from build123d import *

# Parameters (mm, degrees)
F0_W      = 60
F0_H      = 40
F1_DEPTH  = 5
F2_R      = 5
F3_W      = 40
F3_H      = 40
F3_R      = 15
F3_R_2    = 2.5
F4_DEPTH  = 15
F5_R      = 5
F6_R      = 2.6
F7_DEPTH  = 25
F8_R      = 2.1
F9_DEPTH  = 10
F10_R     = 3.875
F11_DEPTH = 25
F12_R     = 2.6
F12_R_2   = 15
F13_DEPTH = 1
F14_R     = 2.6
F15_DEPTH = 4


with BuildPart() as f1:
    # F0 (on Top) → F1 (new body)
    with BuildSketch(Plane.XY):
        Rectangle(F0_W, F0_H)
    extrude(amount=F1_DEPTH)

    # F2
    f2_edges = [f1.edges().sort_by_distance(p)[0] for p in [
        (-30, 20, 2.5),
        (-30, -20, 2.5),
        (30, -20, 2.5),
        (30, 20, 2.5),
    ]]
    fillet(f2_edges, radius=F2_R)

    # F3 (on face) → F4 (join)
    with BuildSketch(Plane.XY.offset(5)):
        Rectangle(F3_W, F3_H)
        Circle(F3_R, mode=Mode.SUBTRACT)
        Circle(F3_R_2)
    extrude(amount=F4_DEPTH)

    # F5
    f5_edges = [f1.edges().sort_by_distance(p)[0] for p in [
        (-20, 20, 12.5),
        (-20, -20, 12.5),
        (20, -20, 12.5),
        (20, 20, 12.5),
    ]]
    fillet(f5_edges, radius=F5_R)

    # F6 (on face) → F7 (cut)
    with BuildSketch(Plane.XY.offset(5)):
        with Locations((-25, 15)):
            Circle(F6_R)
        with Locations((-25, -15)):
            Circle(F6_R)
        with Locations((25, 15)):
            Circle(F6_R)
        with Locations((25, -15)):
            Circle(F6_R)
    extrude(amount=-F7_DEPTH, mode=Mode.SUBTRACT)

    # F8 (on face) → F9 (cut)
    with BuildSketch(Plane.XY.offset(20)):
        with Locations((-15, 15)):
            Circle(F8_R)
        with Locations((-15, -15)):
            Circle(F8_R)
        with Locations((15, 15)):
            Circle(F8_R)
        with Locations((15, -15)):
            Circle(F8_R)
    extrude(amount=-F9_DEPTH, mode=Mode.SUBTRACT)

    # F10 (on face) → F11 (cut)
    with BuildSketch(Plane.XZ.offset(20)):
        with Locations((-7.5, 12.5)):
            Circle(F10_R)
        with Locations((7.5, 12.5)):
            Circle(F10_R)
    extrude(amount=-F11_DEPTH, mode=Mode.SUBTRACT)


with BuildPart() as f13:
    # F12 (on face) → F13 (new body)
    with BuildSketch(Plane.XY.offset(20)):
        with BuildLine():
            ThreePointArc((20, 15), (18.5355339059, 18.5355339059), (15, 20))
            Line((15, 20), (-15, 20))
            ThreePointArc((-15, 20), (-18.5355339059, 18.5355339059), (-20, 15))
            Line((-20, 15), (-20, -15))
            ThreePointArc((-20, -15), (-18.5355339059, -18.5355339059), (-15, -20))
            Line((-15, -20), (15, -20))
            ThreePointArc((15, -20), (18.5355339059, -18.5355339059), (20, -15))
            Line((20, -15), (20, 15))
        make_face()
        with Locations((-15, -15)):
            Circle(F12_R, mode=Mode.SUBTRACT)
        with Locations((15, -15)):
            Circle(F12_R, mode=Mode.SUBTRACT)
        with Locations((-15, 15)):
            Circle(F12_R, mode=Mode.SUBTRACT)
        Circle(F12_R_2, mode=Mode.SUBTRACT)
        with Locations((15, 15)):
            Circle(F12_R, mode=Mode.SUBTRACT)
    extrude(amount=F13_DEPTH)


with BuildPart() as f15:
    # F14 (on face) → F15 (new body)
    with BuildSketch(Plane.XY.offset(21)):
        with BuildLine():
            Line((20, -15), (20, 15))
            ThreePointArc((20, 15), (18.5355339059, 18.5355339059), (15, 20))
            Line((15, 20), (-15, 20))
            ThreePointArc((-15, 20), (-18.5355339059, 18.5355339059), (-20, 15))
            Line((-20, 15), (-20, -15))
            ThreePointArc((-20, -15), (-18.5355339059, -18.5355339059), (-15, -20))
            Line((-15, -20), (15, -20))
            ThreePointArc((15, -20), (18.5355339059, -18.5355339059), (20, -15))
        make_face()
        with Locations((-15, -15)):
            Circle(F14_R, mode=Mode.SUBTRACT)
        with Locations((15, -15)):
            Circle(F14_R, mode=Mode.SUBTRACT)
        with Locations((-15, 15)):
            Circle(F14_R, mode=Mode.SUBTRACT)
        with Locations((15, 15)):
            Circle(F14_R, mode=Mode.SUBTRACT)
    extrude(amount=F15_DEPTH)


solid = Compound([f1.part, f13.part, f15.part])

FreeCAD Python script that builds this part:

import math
import FreeCAD as App
import Part
import Sketcher
Q = App.Units.Quantity


def edges_at(feature, points):
    """Names of the edges that pass closest to the given points."""
    edges = feature.Shape.Edges
    near = lambda p: min(range(len(edges)), key=lambda i: edges[i].distToShape(Part.Vertex(*p))[0])
    return sorted({f"Edge{near(p) + 1}" for p in points})

doc = App.newDocument("Part")
body = doc.addObject("PartDesign::Body", "Body")

# Sketch on XY plane
sketch1 = body.newObject("Sketcher::SketchObject", "Sketch")
sketch1.AttachmentSupport = (doc.getObject("XY_Plane"), [""])
sketch1.MapMode = "FlatFace"
sketch1.addGeometry([
    Part.LineSegment(App.Vector(-30, 20, 0), App.Vector(-30, -20, 0)),
    Part.LineSegment(App.Vector(-30, -20, 0), App.Vector(30, -20, 0)),
    Part.LineSegment(App.Vector(30, -20, 0), App.Vector(30, 20, 0)),
    Part.LineSegment(App.Vector(30, 20, 0), App.Vector(-30, 20, 0)),
], False)
sketch1.addConstraint([
    Sketcher.Constraint("Coincident", 0, 2, 1, 1),
    Sketcher.Constraint("Coincident", 1, 2, 2, 1),
    Sketcher.Constraint("Coincident", 2, 2, 3, 1),
    Sketcher.Constraint("Coincident", 3, 2, 0, 1),
    Sketcher.Constraint("Vertical", 0),
    Sketcher.Constraint("Horizontal", 1),
    Sketcher.Constraint("Vertical", 2),
    Sketcher.Constraint("Horizontal", 3),
    Sketcher.Constraint("Symmetric", 0, 2, 2, 2, -1, 1),
    Sketcher.Constraint("DistanceX", 1, 1, 1, 2, Q("60 mm")),
    Sketcher.Constraint("DistanceY", 0, 2, 0, 1, Q("40 mm")),
])
pad1 = body.newObject("PartDesign::Pad", "Pad")
pad1.Profile = sketch1
pad1.Length = 5
doc.recompute()

fillet = body.newObject("PartDesign::Fillet", "Fillet")
fillet.Base = (pad1, edges_at(pad1, [
    (-30, 20, 2.5),
    (-30, -20, 2.5),
    (30, -20, 2.5),
    (30, 20, 2.5),
]))
fillet.Radius = 5

# Sketch on XY plane
sketch2 = body.newObject("Sketcher::SketchObject", "Sketch001")
sketch2.AttachmentSupport = (doc.getObject("XY_Plane"), [""])
sketch2.MapMode = "FlatFace"
sketch2.AttachmentOffset = App.Placement(App.Vector(0, 0, 5), App.Rotation())
sketch2.addGeometry([
    Part.LineSegment(App.Vector(-20, 20, 0), App.Vector(-20, -20, 0)),  # 0
    Part.LineSegment(App.Vector(-20, -20, 0), App.Vector(20, -20, 0)),  # 1
    Part.LineSegment(App.Vector(20, -20, 0), App.Vector(20, 20, 0)),  # 2
    Part.LineSegment(App.Vector(20, 20, 0), App.Vector(-20, 20, 0)),  # 3
    Part.Circle(App.Vector(0, 0, 0), App.Vector(0, 0, 1), 15),  # 4
    Part.Circle(App.Vector(0, 0, 0), App.Vector(0, 0, 1), 2.5),  # 5
], False)
sketch2.addConstraint([
    Sketcher.Constraint("Coincident", 0, 2, 1, 1),
    Sketcher.Constraint("Coincident", 1, 2, 2, 1),
    Sketcher.Constraint("Coincident", 2, 2, 3, 1),
    Sketcher.Constraint("Coincident", 3, 2, 0, 1),
    Sketcher.Constraint("Vertical", 0),
    Sketcher.Constraint("Horizontal", 1),
    Sketcher.Constraint("Vertical", 2),
    Sketcher.Constraint("Horizontal", 3),
    Sketcher.Constraint("Coincident", 4, 3, -1, 1),
    Sketcher.Constraint("Coincident", 5, 3, -1, 1),
    Sketcher.Constraint("Symmetric", 0, 2, 2, 2, -1, 1),
    Sketcher.Constraint("Equal", 3, 0),
    Sketcher.Constraint("Diameter", 4, Q("30 mm")),
    Sketcher.Constraint("Diameter", 5, Q("5 mm")),
    Sketcher.Constraint("DistanceX", 1, 1, 1, 2, Q("40 mm")),
])
pad2 = body.newObject("PartDesign::Pad", "Pad001")
pad2.Profile = sketch2
pad2.Length = 15
doc.recompute()

fillet2 = body.newObject("PartDesign::Fillet", "Fillet001")
fillet2.Base = (pad2, edges_at(pad2, [
    (-20, 20, 12.5),
    (-20, -20, 12.5),
    (20, -20, 12.5),
    (20, 20, 12.5),
]))
fillet2.Radius = 5

# Sketch on XY plane
sketch3 = body.newObject("Sketcher::SketchObject", "Sketch002")
sketch3.AttachmentSupport = (doc.getObject("XY_Plane"), [""])
sketch3.MapMode = "FlatFace"
sketch3.AttachmentOffset = App.Placement(App.Vector(0, 0, 5), App.Rotation())
sketch3.addGeometry([
    Part.Circle(App.Vector(-25, 15, 0), App.Vector(0, 0, 1), 2.6),
    Part.Circle(App.Vector(-25, -15, 0), App.Vector(0, 0, 1), 2.6),
    Part.Circle(App.Vector(25, 15, 0), App.Vector(0, 0, 1), 2.6),
    Part.Circle(App.Vector(25, -15, 0), App.Vector(0, 0, 1), 2.6),
], False)
sketch3.addConstraint([
    Sketcher.Constraint("Equal", 0, 1),
    Sketcher.Constraint("Equal", 1, 2),
    Sketcher.Constraint("Equal", 2, 3),
    Sketcher.Constraint("Symmetric", 1, 3, 2, 3, -1, 1),
    Sketcher.Constraint("Symmetric", 0, 3, 3, 3, -1, 1),
    Sketcher.Constraint("Symmetric", 0, 3, 2, 3, -2),
    Sketcher.Constraint("Diameter", 0, Q("5.2 mm")),
    Sketcher.Constraint("DistanceX", 0, 3, -1, 1, Q("25 mm")),
    Sketcher.Constraint("DistanceY", -1, 1, 0, 3, Q("15 mm")),
])
pocket1 = body.newObject("PartDesign::Pocket", "Pocket")
pocket1.Profile = sketch3
pocket1.Length = 25

# Sketch on XY plane
sketch4 = body.newObject("Sketcher::SketchObject", "Sketch003")
sketch4.AttachmentSupport = (doc.getObject("XY_Plane"), [""])
sketch4.MapMode = "FlatFace"
sketch4.AttachmentOffset = App.Placement(App.Vector(0, 0, 20), App.Rotation())
sketch4.addGeometry([
    Part.Circle(App.Vector(-15, 15, 0), App.Vector(0, 0, 1), 2.1),
    Part.Circle(App.Vector(-15, -15, 0), App.Vector(0, 0, 1), 2.1),
    Part.Circle(App.Vector(15, 15, 0), App.Vector(0, 0, 1), 2.1),
    Part.Circle(App.Vector(15, -15, 0), App.Vector(0, 0, 1), 2.1),
], False)
sketch4.addConstraint([
    Sketcher.Constraint("Equal", 0, 1),
    Sketcher.Constraint("Equal", 1, 2),
    Sketcher.Constraint("Equal", 2, 3),
    Sketcher.Constraint("Symmetric", 1, 3, 2, 3, -1, 1),
    Sketcher.Constraint("Symmetric", 0, 3, 3, 3, -1, 1),
    Sketcher.Constraint("Symmetric", 0, 3, 2, 3, -2),
    Sketcher.Constraint("Diameter", 0, Q("4.2 mm")),
    Sketcher.Constraint("DistanceX", 0, 3, -1, 1, Q("15 mm")),
    Sketcher.Constraint("DistanceY", -1, 1, 0, 3, Q("15 mm")),
])
pocket2 = body.newObject("PartDesign::Pocket", "Pocket001")
pocket2.Profile = sketch4
pocket2.Length = 10

# Sketch on XZ plane
sketch5 = body.newObject("Sketcher::SketchObject", "Sketch004")
sketch5.AttachmentSupport = (doc.getObject("XZ_Plane"), [""])
sketch5.MapMode = "FlatFace"
sketch5.AttachmentOffset = App.Placement(App.Vector(0, 0, 20), App.Rotation())
sketch5.addGeometry([
    Part.Circle(App.Vector(-7.5, 12.5, 0), App.Vector(0, 0, 1), 3.9),
    Part.Circle(App.Vector(7.5, 12.5, 0), App.Vector(0, 0, 1), 3.9),
], False)
sketch5.addConstraint([
    Sketcher.Constraint("Equal", 0, 1),
    Sketcher.Constraint("Symmetric", 0, 3, 1, 3, -2),
    Sketcher.Constraint("Diameter", 0, Q("7.75 mm")),
    Sketcher.Constraint("DistanceX", 0, 3, 1, 3, Q("15 mm")),
    Sketcher.Constraint("DistanceY", -1, 1, 0, 3, Q("12.5 mm")),
])
pocket3 = body.newObject("PartDesign::Pocket", "Pocket002")
pocket3.Profile = sketch5
pocket3.Length = 25
body2 = doc.addObject("PartDesign::Body", "Body001")

# Sketch on XY plane
sketch6 = body2.newObject("Sketcher::SketchObject", "Sketch005")
sketch6.AttachmentSupport = (doc.getObject("XY_Plane001"), [""])
sketch6.MapMode = "FlatFace"
sketch6.AttachmentOffset = App.Placement(App.Vector(0, 0, 20), App.Rotation())
sketch6.addGeometry([
    Part.ArcOfCircle(Part.Circle(App.Vector(15, 15, 0), App.Vector(0, 0, 1), 5), math.radians(0), math.radians(90)),  # 0
    Part.LineSegment(App.Vector(15, 20, 0), App.Vector(-15, 20, 0)),  # 1
    Part.ArcOfCircle(Part.Circle(App.Vector(-15, 15, 0), App.Vector(0, 0, 1), 5), math.radians(90), math.radians(180)),  # 2
    Part.LineSegment(App.Vector(-20, 15, 0), App.Vector(-20, -15, 0)),  # 3
    Part.ArcOfCircle(Part.Circle(App.Vector(-15, -15, 0), App.Vector(0, 0, 1), 5), math.radians(180), math.radians(270)),  # 4
    Part.LineSegment(App.Vector(-15, -20, 0), App.Vector(15, -20, 0)),  # 5
    Part.ArcOfCircle(Part.Circle(App.Vector(15, -15, 0), App.Vector(0, 0, 1), 5), math.radians(-90), math.radians(0)),  # 6
    Part.LineSegment(App.Vector(20, -15, 0), App.Vector(20, 15, 0)),  # 7
    Part.Circle(App.Vector(-15, -15, 0), App.Vector(0, 0, 1), 2.6),  # 8
    Part.Circle(App.Vector(15, -15, 0), App.Vector(0, 0, 1), 2.6),  # 9
    Part.Circle(App.Vector(-15, 15, 0), App.Vector(0, 0, 1), 2.6),  # 10
    Part.Circle(App.Vector(0, 0, 0), App.Vector(0, 0, 1), 15),  # 11
    Part.Circle(App.Vector(15, 15, 0), App.Vector(0, 0, 1), 2.6),  # 12
], False)
sketch6.addConstraint([
    Sketcher.Constraint("Tangent", 0, 2, 1, 1),
    Sketcher.Constraint("Tangent", 1, 2, 2, 1),
    Sketcher.Constraint("Tangent", 2, 2, 3, 1),
    Sketcher.Constraint("Tangent", 3, 2, 4, 1),
    Sketcher.Constraint("Tangent", 4, 2, 5, 1),
    Sketcher.Constraint("Tangent", 5, 2, 6, 1),
    Sketcher.Constraint("Tangent", 6, 2, 7, 1),
    Sketcher.Constraint("Tangent", 7, 2, 0, 1),
    Sketcher.Constraint("Horizontal", 1),
    Sketcher.Constraint("Vertical", 3),
    Sketcher.Constraint("Horizontal", 5),
    Sketcher.Constraint("Vertical", 7),
    Sketcher.Constraint("Coincident", 11, 3, -1, 1),
    Sketcher.Constraint("Coincident", 8, 3, 4, 3),
    Sketcher.Constraint("Coincident", 9, 3, 6, 3),
    Sketcher.Constraint("Coincident", 10, 3, 2, 3),
    Sketcher.Constraint("Coincident", 12, 3, 0, 3),
    Sketcher.Constraint("Equal", 0, 2),
    Sketcher.Constraint("Equal", 2, 4),
    Sketcher.Constraint("Equal", 4, 6),
    Sketcher.Constraint("Equal", 8, 9),
    Sketcher.Constraint("Equal", 9, 10),
    Sketcher.Constraint("Equal", 10, 12),
    Sketcher.Constraint("Symmetric", 0, 3, 4, 3, -1, 1),
    Sketcher.Constraint("Equal", 5, 3),
    Sketcher.Constraint("Diameter", 11, Q("30 mm")),
    Sketcher.Constraint("Radius", 0, Q("5 mm")),
    Sketcher.Constraint("Diameter", 8, Q("5.2 mm")),
    Sketcher.Constraint("DistanceX", 1, 2, 1, 1, Q("30 mm")),
])
pad3 = body2.newObject("PartDesign::Pad", "Pad002")
pad3.Profile = sketch6
pad3.Length = 1
body3 = doc.addObject("PartDesign::Body", "Body002")

# Sketch on XY plane
sketch7 = body3.newObject("Sketcher::SketchObject", "Sketch006")
sketch7.AttachmentSupport = (doc.getObject("XY_Plane002"), [""])
sketch7.MapMode = "FlatFace"
sketch7.AttachmentOffset = App.Placement(App.Vector(0, 0, 21), App.Rotation())
sketch7.addGeometry([
    Part.LineSegment(App.Vector(20, -15, 0), App.Vector(20, 15, 0)),  # 0
    Part.ArcOfCircle(Part.Circle(App.Vector(15, 15, 0), App.Vector(0, 0, 1), 5), math.radians(0), math.radians(90)),  # 1
    Part.LineSegment(App.Vector(15, 20, 0), App.Vector(-15, 20, 0)),  # 2
    Part.ArcOfCircle(Part.Circle(App.Vector(-15, 15, 0), App.Vector(0, 0, 1), 5), math.radians(90), math.radians(180)),  # 3
    Part.LineSegment(App.Vector(-20, 15, 0), App.Vector(-20, -15, 0)),  # 4
    Part.ArcOfCircle(Part.Circle(App.Vector(-15, -15, 0), App.Vector(0, 0, 1), 5), math.radians(180), math.radians(270)),  # 5
    Part.LineSegment(App.Vector(-15, -20, 0), App.Vector(15, -20, 0)),  # 6
    Part.ArcOfCircle(Part.Circle(App.Vector(15, -15, 0), App.Vector(0, 0, 1), 5), math.radians(-90), math.radians(0)),  # 7
    Part.Circle(App.Vector(-15, -15, 0), App.Vector(0, 0, 1), 2.6),  # 8
    Part.Circle(App.Vector(15, -15, 0), App.Vector(0, 0, 1), 2.6),  # 9
    Part.Circle(App.Vector(-15, 15, 0), App.Vector(0, 0, 1), 2.6),  # 10
    Part.Circle(App.Vector(15, 15, 0), App.Vector(0, 0, 1), 2.6),  # 11
], False)
sketch7.addConstraint([
    Sketcher.Constraint("Tangent", 0, 2, 1, 1),
    Sketcher.Constraint("Tangent", 1, 2, 2, 1),
    Sketcher.Constraint("Tangent", 2, 2, 3, 1),
    Sketcher.Constraint("Tangent", 3, 2, 4, 1),
    Sketcher.Constraint("Tangent", 4, 2, 5, 1),
    Sketcher.Constraint("Tangent", 5, 2, 6, 1),
    Sketcher.Constraint("Tangent", 6, 2, 7, 1),
    Sketcher.Constraint("Tangent", 7, 2, 0, 1),
    Sketcher.Constraint("Vertical", 0),
    Sketcher.Constraint("Horizontal", 2),
    Sketcher.Constraint("Vertical", 4),
    Sketcher.Constraint("Horizontal", 6),
    Sketcher.Constraint("Coincident", 8, 3, 5, 3),
    Sketcher.Constraint("Coincident", 9, 3, 7, 3),
    Sketcher.Constraint("Coincident", 10, 3, 3, 3),
    Sketcher.Constraint("Coincident", 11, 3, 1, 3),
    Sketcher.Constraint("Equal", 1, 3),
    Sketcher.Constraint("Equal", 3, 5),
    Sketcher.Constraint("Equal", 5, 7),
    Sketcher.Constraint("Equal", 8, 9),
    Sketcher.Constraint("Equal", 9, 10),
    Sketcher.Constraint("Equal", 10, 11),
    Sketcher.Constraint("Symmetric", 1, 3, 5, 3, -1, 1),
    Sketcher.Constraint("Equal", 6, 0),
    Sketcher.Constraint("Radius", 1, Q("5 mm")),
    Sketcher.Constraint("Diameter", 8, Q("5.2 mm")),
    Sketcher.Constraint("DistanceX", 2, 2, 2, 1, Q("30 mm")),
])
pad4 = body3.newObject("PartDesign::Pad", "Pad003")
pad4.Profile = sketch7
pad4.Length = 4

doc.recompute()
